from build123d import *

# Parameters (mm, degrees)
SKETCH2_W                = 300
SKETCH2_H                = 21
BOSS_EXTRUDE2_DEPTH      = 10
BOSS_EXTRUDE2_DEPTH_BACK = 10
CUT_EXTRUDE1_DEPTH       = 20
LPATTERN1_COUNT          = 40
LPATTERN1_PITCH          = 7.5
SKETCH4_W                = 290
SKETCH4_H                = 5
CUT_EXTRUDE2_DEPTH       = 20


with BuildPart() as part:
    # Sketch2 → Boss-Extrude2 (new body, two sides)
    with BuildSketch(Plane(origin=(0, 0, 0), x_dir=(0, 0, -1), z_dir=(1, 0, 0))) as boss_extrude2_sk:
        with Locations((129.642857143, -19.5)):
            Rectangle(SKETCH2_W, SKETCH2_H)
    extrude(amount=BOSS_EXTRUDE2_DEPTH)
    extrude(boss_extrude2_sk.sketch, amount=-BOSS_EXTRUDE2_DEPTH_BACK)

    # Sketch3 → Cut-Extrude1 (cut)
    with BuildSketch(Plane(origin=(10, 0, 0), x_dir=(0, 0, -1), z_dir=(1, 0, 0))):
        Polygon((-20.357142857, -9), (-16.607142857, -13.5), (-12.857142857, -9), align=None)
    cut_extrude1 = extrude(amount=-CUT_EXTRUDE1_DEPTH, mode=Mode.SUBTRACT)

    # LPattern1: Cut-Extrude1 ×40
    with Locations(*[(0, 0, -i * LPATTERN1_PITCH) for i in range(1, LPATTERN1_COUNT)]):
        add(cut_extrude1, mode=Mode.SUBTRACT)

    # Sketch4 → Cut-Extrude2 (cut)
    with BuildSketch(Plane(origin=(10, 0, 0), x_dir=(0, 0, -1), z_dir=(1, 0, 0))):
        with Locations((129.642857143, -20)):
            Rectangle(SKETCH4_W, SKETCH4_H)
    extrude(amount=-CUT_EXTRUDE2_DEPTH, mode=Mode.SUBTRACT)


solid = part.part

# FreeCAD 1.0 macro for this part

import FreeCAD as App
import Part
import Sketcher

V = App.Vector
Q = App.Units.Quantity

doc = App.newDocument("Part")
body = doc.addObject("PartDesign::Body", "Body")

sketch1 = body.newObject("Sketcher::SketchObject", "Sketch")
sketch1.AttachmentSupport = (doc.getObject("YZ_Plane"), [""])
sketch1.MapMode = "FlatFace"
sketch1.addGeometry(Part.LineSegment(V(-9, 20.357143, 0), V(-30, 20.357143, 0)), False)
sketch1.addGeometry(Part.LineSegment(V(-30, 20.357143, 0), V(-30, -279.642857, 0)), False)
sketch1.addGeometry(Part.LineSegment(V(-30, -279.642857, 0), V(-9, -279.642857, 0)), False)
sketch1.addGeometry(Part.LineSegment(V(-9, -279.642857, 0), V(-9, 20.357143, 0)), False)
sketch1.addConstraint(Sketcher.Constraint("Coincident", 0, 2, 1, 1))
sketch1.addConstraint(Sketcher.Constraint("Coincident", 1, 2, 2, 1))
sketch1.addConstraint(Sketcher.Constraint("Coincident", 2, 2, 3, 1))
sketch1.addConstraint(Sketcher.Constraint("Coincident", 3, 2, 0, 1))
sketch1.addConstraint(Sketcher.Constraint("Horizontal", 0))
sketch1.addConstraint(Sketcher.Constraint("Vertical", 1))
sketch1.addConstraint(Sketcher.Constraint("Horizontal", 2))
sketch1.addConstraint(Sketcher.Constraint("Vertical", 3))
sketch1.addConstraint(Sketcher.Constraint("DistanceX", 0, 2, 0, 1, Q("21 mm")))
sketch1.addConstraint(Sketcher.Constraint("DistanceY", 1, 2, 1, 1, Q("300 mm")))
sketch1.addConstraint(Sketcher.Constraint("DistanceX", 0, 2, -1, 1, Q("30 mm")))
sketch1.addConstraint(Sketcher.Constraint("DistanceY", -1, 1, 0, 2, Q("20.357143 mm")))
pad1 = body.newObject("PartDesign::Pad", "Pad")
pad1.Profile = sketch1
pad1.Type = "TwoLengths"
pad1.Length = 10
pad1.Length2 = 10

sketch2 = body.newObject("Sketcher::SketchObject", "Sketch001")
sketch2.AttachmentSupport = (doc.getObject("YZ_Plane"), [""])
sketch2.MapMode = "FlatFace"
sketch2.AttachmentOffset = App.Placement(V(0, 0, 10), App.Rotation())
sketch2.addGeometry(Part.LineSegment(V(-9, 20.357143, 0), V(-13.5, 16.607143, 0)), False)
sketch2.addGeometry(Part.LineSegment(V(-13.5, 16.607143, 0), V(-9, 12.857143, 0)), False)
sketch2.addGeometry(Part.LineSegment(V(-9, 12.857143, 0), V(-9, 20.357143, 0)), False)
sketch2.addConstraint(Sketcher.Constraint("Coincident", 0, 2, 1, 1))
sketch2.addConstraint(Sketcher.Constraint("Coincident", 1, 2, 2, 1))
sketch2.addConstraint(Sketcher.Constraint("Coincident", 2, 2, 0, 1))
sketch2.addConstraint(Sketcher.Constraint("Vertical", 2))
sketch2.addConstraint(Sketcher.Constraint("Equal", 0, 1))
sketch2.addConstraint(Sketcher.Constraint("DistanceY", 2, 1, 2, 2, Q("7.5 mm")))
sketch2.addConstraint(Sketcher.Constraint("DistanceX", 1, 2, -1, 1, Q("9 mm")))
sketch2.addConstraint(Sketcher.Constraint("DistanceX", 0, 2, -1, 1, Q("13.5 mm")))
sketch2.addConstraint(Sketcher.Constraint("DistanceY", -1, 1, 0, 2, Q("16.607143 mm")))
pocket1 = body.newObject("PartDesign::Pocket", "Pocket")
pocket1.Profile = sketch2
pocket1.Length = 20
doc.recompute()

linearpattern = body.newObject("PartDesign::LinearPattern", "LinearPattern")
linearpattern.Originals = [pocket1]
linearpattern.Direction = (doc.getObject("Z_Axis"), [""])
linearpattern.Mode = "offset"
linearpattern.Offset = 7.5
linearpattern.Occurrences = 40
linearpattern.Reversed = True
body.Tip = linearpattern

sketch3 = body.newObject("Sketcher::SketchObject", "Sketch002")
sketch3.AttachmentSupport = (doc.getObject("YZ_Plane"), [""])
sketch3.MapMode = "FlatFace"
sketch3.AttachmentOffset = App.Placement(V(0, 0, 10), App.Rotation())
sketch3.addGeometry(Part.LineSegment(V(-17.5, 15.357143, 0), V(-22.5, 15.357143, 0)), False)
sketch3.addGeometry(Part.LineSegment(V(-22.5, 15.357143, 0), V(-22.5, -274.642857, 0)), False)
sketch3.addGeometry(Part.LineSegment(V(-22.5, -274.642857, 0), V(-17.5, -274.642857, 0)), False)
sketch3.addGeometry(Part.LineSegment(V(-17.5, -274.642857, 0), V(-17.5, 15.357143, 0)), False)
sketch3.addConstraint(Sketcher.Constraint("Coincident", 0, 2, 1, 1))
sketch3.addConstraint(Sketcher.Constraint("Coincident", 1, 2, 2, 1))
sketch3.addConstraint(Sketcher.Constraint("Coincident", 2, 2, 3, 1))
sketch3.addConstraint(Sketcher.Constraint("Coincident", 3, 2, 0, 1))
sketch3.addConstraint(Sketcher.Constraint("Horizontal", 0))
sketch3.addConstraint(Sketcher.Constraint("Vertical", 1))
sketch3.addConstraint(Sketcher.Constraint("Horizontal", 2))
sketch3.addConstraint(Sketcher.Constraint("Vertical", 3))
sketch3.addConstraint(Sketcher.Constraint("DistanceX", 0, 2, 0, 1, Q("5 mm")))
sketch3.addConstraint(Sketcher.Constraint("DistanceY", 1, 2, 1, 1, Q("290 mm")))
sketch3.addConstraint(Sketcher.Constraint("DistanceX", 0, 2, -1, 1, Q("22.5 mm")))
sketch3.addConstraint(Sketcher.Constraint("DistanceY", -1, 1, 0, 2, Q("15.357143 mm")))
pocket2 = body.newObject("PartDesign::Pocket", "Pocket001")
pocket2.Profile = sketch3
pocket2.Length = 20

doc.recompute()
